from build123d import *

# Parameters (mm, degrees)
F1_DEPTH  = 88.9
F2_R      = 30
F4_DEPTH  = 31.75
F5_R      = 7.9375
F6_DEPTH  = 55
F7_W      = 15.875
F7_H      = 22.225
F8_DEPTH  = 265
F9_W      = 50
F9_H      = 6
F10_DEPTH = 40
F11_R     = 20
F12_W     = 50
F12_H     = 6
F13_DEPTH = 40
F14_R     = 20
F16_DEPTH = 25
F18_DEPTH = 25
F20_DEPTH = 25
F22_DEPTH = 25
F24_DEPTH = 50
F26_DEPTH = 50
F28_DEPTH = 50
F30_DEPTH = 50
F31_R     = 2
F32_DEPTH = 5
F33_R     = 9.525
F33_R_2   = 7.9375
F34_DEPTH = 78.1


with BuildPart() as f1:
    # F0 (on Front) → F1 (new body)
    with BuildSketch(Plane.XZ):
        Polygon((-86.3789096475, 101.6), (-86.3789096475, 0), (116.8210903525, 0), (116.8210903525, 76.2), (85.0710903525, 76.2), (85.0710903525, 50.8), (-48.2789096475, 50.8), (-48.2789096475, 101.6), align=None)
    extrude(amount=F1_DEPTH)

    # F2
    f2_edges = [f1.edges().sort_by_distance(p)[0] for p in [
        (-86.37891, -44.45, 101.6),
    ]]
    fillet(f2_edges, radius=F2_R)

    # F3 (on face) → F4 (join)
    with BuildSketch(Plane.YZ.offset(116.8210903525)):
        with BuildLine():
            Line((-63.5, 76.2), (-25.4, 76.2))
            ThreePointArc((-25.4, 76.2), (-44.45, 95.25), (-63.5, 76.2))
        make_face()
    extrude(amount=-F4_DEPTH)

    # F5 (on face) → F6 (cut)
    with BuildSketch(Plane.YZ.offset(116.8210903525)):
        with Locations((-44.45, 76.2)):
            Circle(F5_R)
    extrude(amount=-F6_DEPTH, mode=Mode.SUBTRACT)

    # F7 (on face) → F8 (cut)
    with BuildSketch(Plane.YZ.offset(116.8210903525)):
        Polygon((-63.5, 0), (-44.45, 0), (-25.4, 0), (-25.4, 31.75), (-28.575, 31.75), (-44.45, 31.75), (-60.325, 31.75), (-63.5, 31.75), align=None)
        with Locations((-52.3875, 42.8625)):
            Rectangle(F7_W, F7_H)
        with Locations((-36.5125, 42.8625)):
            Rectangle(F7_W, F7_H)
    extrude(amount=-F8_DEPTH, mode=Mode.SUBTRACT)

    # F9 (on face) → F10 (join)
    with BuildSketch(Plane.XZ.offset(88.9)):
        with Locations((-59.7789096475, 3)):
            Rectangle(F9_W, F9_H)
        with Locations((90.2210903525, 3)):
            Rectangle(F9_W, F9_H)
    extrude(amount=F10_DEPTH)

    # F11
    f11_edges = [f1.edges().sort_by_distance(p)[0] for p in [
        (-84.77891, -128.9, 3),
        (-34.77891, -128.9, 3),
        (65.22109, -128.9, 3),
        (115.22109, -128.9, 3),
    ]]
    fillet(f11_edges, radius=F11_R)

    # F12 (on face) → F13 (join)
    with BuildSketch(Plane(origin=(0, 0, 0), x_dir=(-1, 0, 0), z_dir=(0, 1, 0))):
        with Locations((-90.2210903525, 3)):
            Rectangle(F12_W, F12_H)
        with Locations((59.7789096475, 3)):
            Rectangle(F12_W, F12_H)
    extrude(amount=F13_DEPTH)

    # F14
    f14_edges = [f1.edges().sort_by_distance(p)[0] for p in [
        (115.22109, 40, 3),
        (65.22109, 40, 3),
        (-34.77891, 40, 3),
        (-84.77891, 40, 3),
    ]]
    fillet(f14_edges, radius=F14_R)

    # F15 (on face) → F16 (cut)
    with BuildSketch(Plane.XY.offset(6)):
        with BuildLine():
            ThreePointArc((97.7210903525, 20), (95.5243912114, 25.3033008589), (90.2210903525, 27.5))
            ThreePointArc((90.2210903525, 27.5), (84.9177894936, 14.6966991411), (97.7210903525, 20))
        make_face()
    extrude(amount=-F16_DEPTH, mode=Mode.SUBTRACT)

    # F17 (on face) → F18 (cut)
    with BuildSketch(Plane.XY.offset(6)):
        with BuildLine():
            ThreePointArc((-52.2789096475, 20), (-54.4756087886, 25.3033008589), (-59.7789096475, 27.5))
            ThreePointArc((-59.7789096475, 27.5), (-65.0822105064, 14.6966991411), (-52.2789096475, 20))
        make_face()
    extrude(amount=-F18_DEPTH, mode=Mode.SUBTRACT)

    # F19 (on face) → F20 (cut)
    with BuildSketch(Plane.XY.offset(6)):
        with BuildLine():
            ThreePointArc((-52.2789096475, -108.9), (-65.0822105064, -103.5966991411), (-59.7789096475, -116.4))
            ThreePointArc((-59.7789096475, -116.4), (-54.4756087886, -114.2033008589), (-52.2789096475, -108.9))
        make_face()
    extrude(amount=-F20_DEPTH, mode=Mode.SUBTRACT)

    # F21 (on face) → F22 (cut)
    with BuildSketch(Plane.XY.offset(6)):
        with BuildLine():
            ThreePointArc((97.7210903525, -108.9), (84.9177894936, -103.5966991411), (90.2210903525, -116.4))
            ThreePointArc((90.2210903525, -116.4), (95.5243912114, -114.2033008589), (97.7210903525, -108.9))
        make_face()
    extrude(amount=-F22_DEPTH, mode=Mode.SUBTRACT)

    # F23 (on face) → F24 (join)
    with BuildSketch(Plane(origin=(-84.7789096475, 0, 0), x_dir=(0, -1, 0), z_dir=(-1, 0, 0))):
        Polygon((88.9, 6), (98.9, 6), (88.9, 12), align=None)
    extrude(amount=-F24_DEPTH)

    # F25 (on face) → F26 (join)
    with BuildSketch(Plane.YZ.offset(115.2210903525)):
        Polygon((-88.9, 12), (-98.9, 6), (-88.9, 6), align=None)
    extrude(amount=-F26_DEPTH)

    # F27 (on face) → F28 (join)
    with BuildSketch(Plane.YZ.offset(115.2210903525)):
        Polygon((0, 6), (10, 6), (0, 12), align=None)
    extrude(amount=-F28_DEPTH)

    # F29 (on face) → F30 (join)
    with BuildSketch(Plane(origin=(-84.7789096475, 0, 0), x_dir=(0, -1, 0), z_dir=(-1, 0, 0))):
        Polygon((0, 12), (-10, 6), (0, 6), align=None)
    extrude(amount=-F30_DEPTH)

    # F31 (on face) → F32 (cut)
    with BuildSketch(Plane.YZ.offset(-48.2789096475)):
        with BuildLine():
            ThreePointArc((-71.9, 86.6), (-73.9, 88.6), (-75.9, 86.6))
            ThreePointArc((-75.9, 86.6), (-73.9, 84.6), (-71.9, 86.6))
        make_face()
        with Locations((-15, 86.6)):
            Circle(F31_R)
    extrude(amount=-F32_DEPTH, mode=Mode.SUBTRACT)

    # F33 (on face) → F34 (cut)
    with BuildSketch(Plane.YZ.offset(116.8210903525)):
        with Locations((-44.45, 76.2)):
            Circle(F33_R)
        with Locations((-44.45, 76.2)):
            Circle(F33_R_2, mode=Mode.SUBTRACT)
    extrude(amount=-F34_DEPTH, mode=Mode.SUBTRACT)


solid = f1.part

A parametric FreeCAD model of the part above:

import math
import FreeCAD as App
import Part
import Sketcher


def edges_at(feature, points):
    """Names of the edges that pass closest to the given points."""
    edges = feature.Shape.Edges
    near = lambda p: min(range(len(edges)), key=lambda i: edges[i].distToShape(Part.Vertex(*p))[0])
    return sorted({f"Edge{near(p) + 1}" for p in points})

doc = App.newDocument("Part")
body = doc.addObject("PartDesign::Body", "Body")

# Sketch on XZ plane
sketch1 = body.newObject("Sketcher::SketchObject", "Sketch")
sketch1.AttachmentSupport = (doc.getObject("XZ_Plane"), [""])
sketch1.MapMode = "FlatFace"
sketch1.addGeometry([
    Part.LineSegment(App.Vector(-86, 102, 0), App.Vector(-86, 0, 0)),  # 0
    Part.LineSegment(App.Vector(-86, 0, 0), App.Vector(117, 0, 0)),  # 1
    Part.LineSegment(App.Vector(117, 0, 0), App.Vector(117, 76, 0)),  # 2
    Part.LineSegment(App.Vector(117, 76, 0), App.Vector(85, 76, 0)),  # 3
    Part.LineSegment(App.Vector(85, 76, 0), App.Vector(85, 51, 0)),  # 4
    Part.LineSegment(App.Vector(85, 51, 0), App.Vector(-48, 51, 0)),  # 5
    Part.LineSegment(App.Vector(-48, 51, 0), App.Vector(-48, 102, 0)),  # 6
    Part.LineSegment(App.Vector(-48, 102, 0), App.Vector(-86, 102, 0)),  # 7
], False)
sketch1.addConstraint([
    Sketcher.Constraint("Coincident", 0, 2, 1, 1),
    Sketcher.Constraint("Coincident", 1, 2, 2, 1),
    Sketcher.Constraint("Coincident", 2, 2, 3, 1),
    Sketcher.Constraint("Coincident", 3, 2, 4, 1),
    Sketcher.Constraint("Coincident", 4, 2, 5, 1),
    Sketcher.Constraint("Coincident", 5, 2, 6, 1),
    Sketcher.Constraint("Coincident", 6, 2, 7, 1),
    Sketcher.Constraint("Coincident", 7, 2, 0, 1),
    Sketcher.Constraint("Vertical", 0),
    Sketcher.Constraint("Horizontal", 1),
    Sketcher.Constraint("Vertical", 2),
    Sketcher.Constraint("Horizontal", 3),
    Sketcher.Constraint("Vertical", 4),
    Sketcher.Constraint("Horizontal", 5),
    Sketcher.Constraint("Vertical", 6),
    Sketcher.Constraint("Horizontal", 7),
    Sketcher.Constraint("PointOnObject", 0, 2, -1),
    Sketcher.Constraint("DistanceX", 1, 1, 1, 2, 203.2),
    Sketcher.Constraint("DistanceX", 7, 2, 7, 1, 38.1),
    Sketcher.Constraint("DistanceY", 0, 2, 0, 1, 101.6),
    Sketcher.Constraint("DistanceY", 2, 1, 2, 2, 76.2),
    Sketcher.Constraint("DistanceY", 4, 2, 4, 1, 25.4),
    Sketcher.Constraint("DistanceX", 3, 2, 3, 1, 31.75),
    Sketcher.Constraint("DistanceX", 0, 2, -1, 1, 86.37891),
])
pad1 = body.newObject("PartDesign::Pad", "Pad")
pad1.Profile = sketch1
pad1.Length = 88.9
doc.recompute()

fillet = body.newObject("PartDesign::Fillet", "Fillet")
fillet.Base = (pad1, edges_at(pad1, [(-86.379, -44.45, 101.6)]))
fillet.Radius = 30

# Sketch on YZ plane
sketch2 = body.newObject("Sketcher::SketchObject", "Sketch001")
sketch2.AttachmentSupport = (doc.getObject("YZ_Plane"), [""])
sketch2.MapMode = "FlatFace"
sketch2.AttachmentOffset = App.Placement(App.Vector(0, 0, 116.82109), App.Rotation())
sketch2.addGeometry([
    Part.LineSegment(App.Vector(-64, 76, 0), App.Vector(-25, 76, 0)),
    Part.ArcOfCircle(Part.Circle(App.Vector(-44, 76, 0), App.Vector(0, 0, 1), 19), math.radians(0), math.radians(180)),
], False)
sketch2.addConstraint([
    Sketcher.Constraint("Coincident", 0, 1, 1, 2),
    Sketcher.Constraint("Coincident", 1, 1, 0, 2),
    Sketcher.Constraint("Horizontal", 0),
    Sketcher.Constraint("Horizontal", 1, 3, 0, 1),
    Sketcher.Constraint("Radius", 1, 19.05),
    Sketcher.Constraint("DistanceY", -1, 1, 1, 3, 76.2),
    Sketcher.Constraint("DistanceX", 0, 1, -1, 1, 63.5),
])
pad2 = body.newObject("PartDesign::Pad", "Pad001")
pad2.Profile = sketch2
pad2.Length = 31.75
pad2.Reversed = True

# Sketch on YZ plane
sketch3 = body.newObject("Sketcher::SketchObject", "Sketch002")
sketch3.AttachmentSupport = (doc.getObject("YZ_Plane"), [""])
sketch3.MapMode = "FlatFace"
sketch3.AttachmentOffset = App.Placement(App.Vector(0, 0, 116.82109), App.Rotation())
sketch3.addGeometry(Part.Circle(App.Vector(-44, 76, 0), App.Vector(0, 0, 1), 8), False)
sketch3.addConstraint([
    Sketcher.Constraint("Diameter", 0, 15.875),
    Sketcher.Constraint("DistanceY", -1, 1, 0, 3, 76.2),
    Sketcher.Constraint("DistanceX", 0, 3, -1, 1, 44.45),
])
pocket1 = body.newObject("PartDesign::Pocket", "Pocket")
pocket1.Profile = sketch3
pocket1.Length = 55

# Sketch on YZ plane
sketch4 = body.newObject("Sketcher::SketchObject", "Sketch003")
sketch4.AttachmentSupport = (doc.getObject("YZ_Plane"), [""])
sketch4.MapMode = "FlatFace"
sketch4.AttachmentOffset = App.Placement(App.Vector(0, 0, 116.82109), App.Rotation())
sketch4.addGeometry([
    Part.LineSegment(App.Vector(-63.5, 0, 0), App.Vector(-25.4, 0, 0)),  # 0
    Part.LineSegment(App.Vector(-25.4, 0, 0), App.Vector(-25.4, 31.8, 0)),  # 1
    Part.LineSegment(App.Vector(-25.4, 31.8, 0), App.Vector(-28.6, 31.8, 0)),  # 2
    Part.LineSegment(App.Vector(-28.6, 31.8, 0), App.Vector(-28.6, 54, 0)),  # 3
    Part.LineSegment(App.Vector(-28.6, 54, 0), App.Vector(-60.3, 54, 0)),  # 4
    Part.LineSegment(App.Vector(-60.3, 54, 0), App.Vector(-60.3, 31.8, 0)),  # 5
    Part.LineSegment(App.Vector(-60.3, 31.8, 0), App.Vector(-63.5, 31.8, 0)),  # 6
    Part.LineSegment(App.Vector(-63.5, 31.8, 0), App.Vector(-63.5, 0, 0)),  # 7
], False)
sketch4.addConstraint([
    Sketcher.Constraint("Coincident", 0, 2, 1, 1),
    Sketcher.Constraint("Coincident", 1, 2, 2, 1),
    Sketcher.Constraint("Coincident", 2, 2, 3, 1),
    Sketcher.Constraint("Coincident", 3, 2, 4, 1),
    Sketcher.Constraint("Coincident", 4, 2, 5, 1),
    Sketcher.Constraint("Coincident", 5, 2, 6, 1),
    Sketcher.Constraint("Coincident", 6, 2, 7, 1),
    Sketcher.Constraint("Coincident", 7, 2, 0, 1),
    Sketcher.Constraint("Horizontal", 0),
    Sketcher.Constraint("Vertical", 1),
    Sketcher.Constraint("Horizontal", 2),
    Sketcher.Constraint("Vertical", 3),
    Sketcher.Constraint("Horizontal", 4),
    Sketcher.Constraint("Vertical", 5),
    Sketcher.Constraint("Horizontal", 6),
    Sketcher.Constraint("Vertical", 7),
    Sketcher.Constraint("PointOnObject", 0, 2, -1),
    Sketcher.Constraint("Horizontal", 2, 2, 5, 2),
    Sketcher.Constraint("Equal", 2, 6),
    Sketcher.Constraint("Equal", 4, 1),
    Sketcher.Constraint("DistanceX", 0, 1, 0, 2, 38.1),
    Sketcher.Constraint("DistanceX", 4, 2, 4, 1, 31.75),
    Sketcher.Constraint("DistanceX", 0, 2, -1, 1, 25.4),
    Sketcher.Constraint("DistanceY", 3, 1, 3, 2, 22.225),
])
pocket2 = body.newObject("PartDesign::Pocket", "Pocket001")
pocket2.Profile = sketch4
pocket2.Length = 265

# Sketch on XZ plane
sketch5 = body.newObject("Sketcher::SketchObject", "Sketch004")
sketch5.AttachmentSupport = (doc.getObject("XZ_Plane"), [""])
sketch5.MapMode = "FlatFace"
sketch5.AttachmentOffset = App.Placement(App.Vector(0, 0, 88.9), App.Rotation())
sketch5.addGeometry([
    Part.LineSegment(App.Vector(-85, 6, 0), App.Vector(-85, 0, 0)),  # 0
    Part.LineSegment(App.Vector(-85, 0, 0), App.Vector(-35, 0, 0)),  # 1
    Part.LineSegment(App.Vector(-35, 0, 0), App.Vector(-35, 6, 0)),  # 2
    Part.LineSegment(App.Vector(-35, 6, 0), App.Vector(-85, 6, 0)),  # 3
    Part.LineSegment(App.Vector(65, 6, 0), App.Vector(65, 0, 0)),  # 4
    Part.LineSegment(App.Vector(65, 0, 0), App.Vector(115, 0, 0)),  # 5
    Part.LineSegment(App.Vector(115, 0, 0), App.Vector(115, 6, 0)),  # 6
    Part.LineSegment(App.Vector(115, 6, 0), App.Vector(65, 6, 0)),  # 7
], False)
sketch5.addConstraint([
    Sketcher.Constraint("Coincident", 0, 2, 1, 1),
    Sketcher.Constraint("Coincident", 1, 2, 2, 1),
    Sketcher.Constraint("Coincident", 2, 2, 3, 1),
    Sketcher.Constraint("Coincident", 3, 2, 0, 1),
    Sketcher.Constraint("Coincident", 4, 2, 5, 1),
    Sketcher.Constraint("Coincident", 5, 2, 6, 1),
    Sketcher.Constraint("Coincident", 6, 2, 7, 1),
    Sketcher.Constraint("Coincident", 7, 2, 4, 1),
    Sketcher.Constraint("Vertical", 0),
    Sketcher.Constraint("Horizontal", 1),
    Sketcher.Constraint("Vertical", 2),
    Sketcher.Constraint("Horizontal", 3),
    Sketcher.Constraint("Vertical", 4),
    Sketcher.Constraint("Horizontal", 5),
    Sketcher.Constraint("Vertical", 6),
    Sketcher.Constraint("Horizontal", 7),
    Sketcher.Constraint("PointOnObject", 0, 2, -1),
    Sketcher.Constraint("PointOnObject", 4, 2, -1),
    Sketcher.Constraint("Horizontal", 3, 2, 6, 2),
    Sketcher.Constraint("Equal", 3, 5),
    Sketcher.Constraint("DistanceX", 1, 1, 1, 2, 50.0),
    Sketcher.Constraint("DistanceY", 0, 2, 0, 1, 6.0),
    Sketcher.Constraint("DistanceX", 1, 2, 4, 2, 100.0),
    Sketcher.Constraint("DistanceX", 0, 2, -1, 1, 84.77891),
])
pad3 = body.newObject("PartDesign::Pad", "Pad002")
pad3.Profile = sketch5
pad3.Length = 40
doc.recompute()

fillet2 = body.newObject("PartDesign::Fillet", "Fillet001")
fillet2.Base = (pad3, edges_at(pad3, [
    (-84.779, -128.9, 3),
    (-34.779, -128.9, 3),
    (65.221, -128.9, 3),
    (115.221, -128.9, 3),
]))
fillet2.Radius = 20

# Sketch on XZ plane
sketch6 = body.newObject("Sketcher::SketchObject", "Sketch005")
sketch6.AttachmentSupport = (doc.getObject("XZ_Plane"), [""])
sketch6.MapMode = "FlatFace"
sketch6.addGeometry([
    Part.LineSegment(App.Vector(115, 6, 0), App.Vector(115, 0, 0)),  # 0
    Part.LineSegment(App.Vector(115, 0, 0), App.Vector(65, 0, 0)),  # 1
    Part.LineSegment(App.Vector(65, 0, 0), App.Vector(65, 6, 0)),  # 2
    Part.LineSegment(App.Vector(65, 6, 0), App.Vector(115, 6, 0)),  # 3
    Part.LineSegment(App.Vector(-35, 6, 0), App.Vector(-35, 0, 0)),  # 4
    Part.LineSegment(App.Vector(-35, 0, 0), App.Vector(-85, 0, 0)),  # 5
    Part.LineSegment(App.Vector(-85, 0, 0), App.Vector(-85, 6, 0)),  # 6
    Part.LineSegment(App.Vector(-85, 6, 0), App.Vector(-35, 6, 0)),  # 7
], False)
sketch6.addConstraint([
    Sketcher.Constraint("Coincident", 0, 2, 1, 1),
    Sketcher.Constraint("Coincident", 1, 2, 2, 1),
    Sketcher.Constraint("Coincident", 2, 2, 3, 1),
    Sketcher.Constraint("Coincident", 3, 2, 0, 1),
    Sketcher.Constraint("Coincident", 4, 2, 5, 1),
    Sketcher.Constraint("Coincident", 5, 2, 6, 1),
    Sketcher.Constraint("Coincident", 6, 2, 7, 1),
    Sketcher.Constraint("Coincident", 7, 2, 4, 1),
    Sketcher.Constraint("Vertical", 0),
    Sketcher.Constraint("Horizontal", 1),
    Sketcher.Constraint("Vertical", 2),
    Sketcher.Constraint("Horizontal", 3),
    Sketcher.Constraint("Vertical", 4),
    Sketcher.Constraint("Horizontal", 5),
    Sketcher.Constraint("Vertical", 6),
    Sketcher.Constraint("Horizontal", 7),
    Sketcher.Constraint("PointOnObject", 0, 2, -1),
    Sketcher.Constraint("PointOnObject", 4, 2, -1),
    Sketcher.Constraint("Horizontal", 3, 2, 6, 2),
    Sketcher.Constraint("Equal", 3, 5),
    Sketcher.Constraint("DistanceX", 1, 2, 1, 1, 50.0),
    Sketcher.Constraint("DistanceY", 0, 2, 0, 1, 6.0),
    Sketcher.Constraint("DistanceX", 4, 2, 1, 2, 100.0),
    Sketcher.Constraint("DistanceX", -1, 1, 0, 2, 115.22109),
])
pad4 = body.newObject("PartDesign::Pad", "Pad003")
pad4.Profile = sketch6
pad4.Length = 40
pad4.Reversed = True
doc.recompute()

fillet3 = body.newObject("PartDesign::Fillet", "Fillet002")
fillet3.Base = (pad4, edges_at(pad4, [
    (115.221, 40, 3),
    (65.221, 40, 3),
    (-34.779, 40, 3),
    (-84.779, 40, 3),
]))
fillet3.Radius = 20

# Sketch on XY plane
sketch7 = body.newObject("Sketcher::SketchObject", "Sketch006")
sketch7.AttachmentSupport = (doc.getObject("XY_Plane"), [""])
sketch7.MapMode = "FlatFace"
sketch7.AttachmentOffset = App.Placement(App.Vector(0, 0, 6), App.Rotation())
sketch7.addGeometry(Part.Circle(App.Vector(90, 20, 0), App.Vector(0, 0, 1), 8), False)
sketch7.addConstraint([
    Sketcher.Constraint("Diameter", 0, 15.0),
    Sketcher.Constraint("DistanceY", -1, 1, 0, 3, 20.0),
    Sketcher.Constraint("DistanceX", -1, 1, 0, 3, 90.22109),
])
pocket3 = body.newObject("PartDesign::Pocket", "Pocket002")
pocket3.Profile = sketch7
pocket3.Length = 25

# Sketch on XY plane
sketch8 = body.newObject("Sketcher::SketchObject", "Sketch007")
sketch8.AttachmentSupport = (doc.getObject("XY_Plane"), [""])
sketch8.MapMode = "FlatFace"
sketch8.AttachmentOffset = App.Placement(App.Vector(0, 0, 6), App.Rotation())
sketch8.addGeometry(Part.Circle(App.Vector(-60, 20, 0), App.Vector(0, 0, 1), 8), False)
sketch8.addConstraint([
    Sketcher.Constraint("Diameter", 0, 15.0),
    Sketcher.Constraint("DistanceY", -1, 1, 0, 3, 20.0),
    Sketcher.Constraint("DistanceX", 0, 3, -1, 1, 59.77891),
])
pocket4 = body.newObject("PartDesign::Pocket", "Pocket003")
pocket4.Profile = sketch8
pocket4.Length = 25

# Sketch on XY plane
sketch9 = body.newObject("Sketcher::SketchObject", "Sketch008")
sketch9.AttachmentSupport = (doc.getObject("XY_Plane"), [""])
sketch9.MapMode = "FlatFace"
sketch9.AttachmentOffset = App.Placement(App.Vector(0, 0, 6), App.Rotation())
sketch9.addGeometry(Part.Circle(App.Vector(-60, -109, 0), App.Vector(0, 0, 1), 8), False)
sketch9.addConstraint([
    Sketcher.Constraint("Diameter", 0, 15.0),
    Sketcher.Constraint("DistanceY", 0, 3, -1, 1, 108.9),
    Sketcher.Constraint("DistanceX", 0, 3, -1, 1, 59.77891),
])
pocket5 = body.newObject("PartDesign::Pocket", "Pocket004")
pocket5.Profile = sketch9
pocket5.Length = 25

# Sketch on XY plane
sketch10 = body.newObject("Sketcher::SketchObject", "Sketch009")
sketch10.AttachmentSupport = (doc.getObject("XY_Plane"), [""])
sketch10.MapMode = "FlatFace"
sketch10.AttachmentOffset = App.Placement(App.Vector(0, 0, 6), App.Rotation())
sketch10.addGeometry(Part.Circle(App.Vector(90, -109, 0), App.Vector(0, 0, 1), 8), False)
sketch10.addConstraint([
    Sketcher.Constraint("Diameter", 0, 15.0),
    Sketcher.Constraint("DistanceY", 0, 3, -1, 1, 108.9),
    Sketcher.Constraint("DistanceX", -1, 1, 0, 3, 90.22109),
])
pocket6 = body.newObject("PartDesign::Pocket", "Pocket005")
pocket6.Profile = sketch10
pocket6.Length = 25

# Sketch on YZ plane
sketch11 = body.newObject("Sketcher::SketchObject", "Sketch010")
sketch11.AttachmentSupport = (doc.getObject("YZ_Plane"), [""])
sketch11.MapMode = "FlatFace"
sketch11.AttachmentOffset = App.Placement(App.Vector(0, 0, -84.77891), App.Rotation())
sketch11.addGeometry([
    Part.LineSegment(App.Vector(-89, 6, 0), App.Vector(-99, 6, 0)),
    Part.LineSegment(App.Vector(-99, 6, 0), App.Vector(-89, 12, 0)),
    Part.LineSegment(App.Vector(-89, 12, 0), App.Vector(-89, 6, 0)),
], False)
sketch11.addConstraint([
    Sketcher.Constraint("Coincident", 0, 2, 1, 1),
    Sketcher.Constraint("Coincident", 1, 2, 2, 1),
    Sketcher.Constraint("Coincident", 2, 2, 0, 1),
    Sketcher.Constraint("Horizontal", 0),
    Sketcher.Constraint("Vertical", 2),
    Sketcher.Constraint("DistanceX", 0, 2, 0, 1, 10.0),
    Sketcher.Constraint("DistanceY", 2, 2, 2, 1, 6.0),
    Sketcher.Constraint("DistanceY", -1, 1, 0, 2, 6.0),
    Sketcher.Constraint("DistanceX", 0, 2, -1, 1, 98.9),
])
pad5 = body.newObject("PartDesign::Pad", "Pad004")
pad5.Profile = sketch11
pad5.Length = 50

# Sketch on YZ plane
sketch12 = body.newObject("Sketcher::SketchObject", "Sketch011")
sketch12.AttachmentSupport = (doc.getObject("YZ_Plane"), [""])
sketch12.MapMode = "FlatFace"
sketch12.AttachmentOffset = App.Placement(App.Vector(0, 0, 115.22109), App.Rotation())
sketch12.addGeometry([
    Part.LineSegment(App.Vector(-89, 12, 0), App.Vector(-99, 6, 0)),
    Part.LineSegment(App.Vector(-99, 6, 0), App.Vector(-89, 6, 0)),
    Part.LineSegment(App.Vector(-89, 6, 0), App.Vector(-89, 12, 0)),
], False)
sketch12.addConstraint([
    Sketcher.Constraint("Coincident", 0, 2, 1, 1),
    Sketcher.Constraint("Coincident", 1, 2, 2, 1),
    Sketcher.Constraint("Coincident", 2, 2, 0, 1),
    Sketcher.Constraint("Horizontal", 1),
    Sketcher.Constraint("Vertical", 2),
    Sketcher.Constraint("DistanceX", 1, 1, 1, 2, 10.0),
    Sketcher.Constraint("DistanceY", 2, 1, 2, 2, 6.0),
    Sketcher.Constraint("DistanceY", -1, 1, 0, 2, 6.0),
    Sketcher.Constraint("DistanceX", 0, 2, -1, 1, 98.9),
])
pad6 = body.newObject("PartDesign::Pad", "Pad005")
pad6.Profile = sketch12
pad6.Length = 50
pad6.Reversed = True

# Sketch on YZ plane
sketch13 = body.newObject("Sketcher::SketchObject", "Sketch012")
sketch13.AttachmentSupport = (doc.getObject("YZ_Plane"), [""])
sketch13.MapMode = "FlatFace"
sketch13.AttachmentOffset = App.Placement(App.Vector(0, 0, 115.22109), App.Rotation())
sketch13.addGeometry([
    Part.LineSegment(App.Vector(0, 6, 0), App.Vector(10, 6, 0)),
    Part.LineSegment(App.Vector(10, 6, 0), App.Vector(0, 12, 0)),
    Part.LineSegment(App.Vector(0, 12, 0), App.Vector(0, 6, 0)),
], False)
sketch13.addConstraint([
    Sketcher.Constraint("Coincident", 0, 2, 1, 1),
    Sketcher.Constraint("Coincident", 1, 2, 2, 1),
    Sketcher.Constraint("Coincident", 2, 2, 0, 1),
    Sketcher.Constraint("Horizontal", 0),
    Sketcher.Constraint("Vertical", 2),
    Sketcher.Constraint("PointOnObject", 1, 2, -2),
    Sketcher.Constraint("DistanceX", 0, 1, 0, 2, 10.0),
    Sketcher.Constraint("DistanceY", 2, 2, 2, 1, 6.0),
    Sketcher.Constraint("DistanceY", -1, 1, 0, 2, 6.0),
])
pad7 = body.newObject("PartDesign::Pad", "Pad006")
pad7.Profile = sketch13
pad7.Length = 50
pad7.Reversed = True

# Sketch on YZ plane
sketch14 = body.newObject("Sketcher::SketchObject", "Sketch013")
sketch14.AttachmentSupport = (doc.getObject("YZ_Plane"), [""])
sketch14.MapMode = "FlatFace"
sketch14.AttachmentOffset = App.Placement(App.Vector(0, 0, -84.77891), App.Rotation())
sketch14.addGeometry([
    Part.LineSegment(App.Vector(0, 12, 0), App.Vector(10, 6, 0)),
    Part.LineSegment(App.Vector(10, 6, 0), App.Vector(0, 6, 0)),
    Part.LineSegment(App.Vector(0, 6, 0), App.Vector(0, 12, 0)),
], False)
sketch14.addConstraint([
    Sketcher.Constraint("Coincident", 0, 2, 1, 1),
    Sketcher.Constraint("Coincident", 1, 2, 2, 1),
    Sketcher.Constraint("Coincident", 2, 2, 0, 1),
    Sketcher.Constraint("Horizontal", 1),
    Sketcher.Constraint("Vertical", 2),
    Sketcher.Constraint("PointOnObject", 1, 2, -2),
    Sketcher.Constraint("DistanceX", 1, 2, 1, 1, 10.0),
    Sketcher.Constraint("DistanceY", 2, 1, 2, 2, 6.0),
    Sketcher.Constraint("DistanceY", -1, 1, 0, 2, 6.0),
])
pad8 = body.newObject("PartDesign::Pad", "Pad007")
pad8.Profile = sketch14
pad8.Length = 50

# Sketch on YZ plane
sketch15 = body.newObject("Sketcher::SketchObject", "Sketch014")
sketch15.AttachmentSupport = (doc.getObject("YZ_Plane"), [""])
sketch15.MapMode = "FlatFace"
sketch15.AttachmentOffset = App.Placement(App.Vector(0, 0, -48.27891), App.Rotation())
sketch15.addGeometry([
    Part.Circle(App.Vector(-73.9, 86.6, 0), App.Vector(0, 0, 1), 2),
    Part.Circle(App.Vector(-15, 86.6, 0), App.Vector(0, 0, 1), 2),
], False)
sketch15.addConstraint([
    Sketcher.Constraint("Equal", 0, 1),
    Sketcher.Constraint("Horizontal", 0, 3, 1, 3),
    Sketcher.Constraint("Diameter", 0, 4.0),
    Sketcher.Constraint("DistanceX", 1, 3, -1, 1, 15.0),
    Sketcher.Constraint("DistanceX", 0, 3, -1, 1, 73.9),
    Sketcher.Constraint("DistanceY", -1, 1, 0, 3, 86.6),
])
pocket7 = body.newObject("PartDesign::Pocket", "Pocket006")
pocket7.Profile = sketch15
pocket7.Length = 5

# Sketch on YZ plane
sketch16 = body.newObject("Sketcher::SketchObject", "Sketch015")
sketch16.AttachmentSupport = (doc.getObject("YZ_Plane"), [""])
sketch16.MapMode = "FlatFace"
sketch16.AttachmentOffset = App.Placement(App.Vector(0, 0, 116.82109), App.Rotation())
sketch16.addGeometry([
    Part.Circle(App.Vector(-44, 76, 0), App.Vector(0, 0, 1), 10),
    Part.Circle(App.Vector(-44, 76, 0), App.Vector(0, 0, 1), 8),
], False)
sketch16.addConstraint([
    Sketcher.Constraint("Coincident", 1, 3, 0, 3),
    Sketcher.Constraint("Diameter", 0, 19.05),
    Sketcher.Constraint("Diameter", 1, 15.875),
    Sketcher.Constraint("DistanceY", -1, 1, 0, 3, 76.2),
    Sketcher.Constraint("DistanceX", 0, 3, -1, 1, 44.45),
])
pocket8 = body.newObject("PartDesign::Pocket", "Pocket007")
pocket8.Profile = sketch16
pocket8.Length = 78.1

doc.recompute()
